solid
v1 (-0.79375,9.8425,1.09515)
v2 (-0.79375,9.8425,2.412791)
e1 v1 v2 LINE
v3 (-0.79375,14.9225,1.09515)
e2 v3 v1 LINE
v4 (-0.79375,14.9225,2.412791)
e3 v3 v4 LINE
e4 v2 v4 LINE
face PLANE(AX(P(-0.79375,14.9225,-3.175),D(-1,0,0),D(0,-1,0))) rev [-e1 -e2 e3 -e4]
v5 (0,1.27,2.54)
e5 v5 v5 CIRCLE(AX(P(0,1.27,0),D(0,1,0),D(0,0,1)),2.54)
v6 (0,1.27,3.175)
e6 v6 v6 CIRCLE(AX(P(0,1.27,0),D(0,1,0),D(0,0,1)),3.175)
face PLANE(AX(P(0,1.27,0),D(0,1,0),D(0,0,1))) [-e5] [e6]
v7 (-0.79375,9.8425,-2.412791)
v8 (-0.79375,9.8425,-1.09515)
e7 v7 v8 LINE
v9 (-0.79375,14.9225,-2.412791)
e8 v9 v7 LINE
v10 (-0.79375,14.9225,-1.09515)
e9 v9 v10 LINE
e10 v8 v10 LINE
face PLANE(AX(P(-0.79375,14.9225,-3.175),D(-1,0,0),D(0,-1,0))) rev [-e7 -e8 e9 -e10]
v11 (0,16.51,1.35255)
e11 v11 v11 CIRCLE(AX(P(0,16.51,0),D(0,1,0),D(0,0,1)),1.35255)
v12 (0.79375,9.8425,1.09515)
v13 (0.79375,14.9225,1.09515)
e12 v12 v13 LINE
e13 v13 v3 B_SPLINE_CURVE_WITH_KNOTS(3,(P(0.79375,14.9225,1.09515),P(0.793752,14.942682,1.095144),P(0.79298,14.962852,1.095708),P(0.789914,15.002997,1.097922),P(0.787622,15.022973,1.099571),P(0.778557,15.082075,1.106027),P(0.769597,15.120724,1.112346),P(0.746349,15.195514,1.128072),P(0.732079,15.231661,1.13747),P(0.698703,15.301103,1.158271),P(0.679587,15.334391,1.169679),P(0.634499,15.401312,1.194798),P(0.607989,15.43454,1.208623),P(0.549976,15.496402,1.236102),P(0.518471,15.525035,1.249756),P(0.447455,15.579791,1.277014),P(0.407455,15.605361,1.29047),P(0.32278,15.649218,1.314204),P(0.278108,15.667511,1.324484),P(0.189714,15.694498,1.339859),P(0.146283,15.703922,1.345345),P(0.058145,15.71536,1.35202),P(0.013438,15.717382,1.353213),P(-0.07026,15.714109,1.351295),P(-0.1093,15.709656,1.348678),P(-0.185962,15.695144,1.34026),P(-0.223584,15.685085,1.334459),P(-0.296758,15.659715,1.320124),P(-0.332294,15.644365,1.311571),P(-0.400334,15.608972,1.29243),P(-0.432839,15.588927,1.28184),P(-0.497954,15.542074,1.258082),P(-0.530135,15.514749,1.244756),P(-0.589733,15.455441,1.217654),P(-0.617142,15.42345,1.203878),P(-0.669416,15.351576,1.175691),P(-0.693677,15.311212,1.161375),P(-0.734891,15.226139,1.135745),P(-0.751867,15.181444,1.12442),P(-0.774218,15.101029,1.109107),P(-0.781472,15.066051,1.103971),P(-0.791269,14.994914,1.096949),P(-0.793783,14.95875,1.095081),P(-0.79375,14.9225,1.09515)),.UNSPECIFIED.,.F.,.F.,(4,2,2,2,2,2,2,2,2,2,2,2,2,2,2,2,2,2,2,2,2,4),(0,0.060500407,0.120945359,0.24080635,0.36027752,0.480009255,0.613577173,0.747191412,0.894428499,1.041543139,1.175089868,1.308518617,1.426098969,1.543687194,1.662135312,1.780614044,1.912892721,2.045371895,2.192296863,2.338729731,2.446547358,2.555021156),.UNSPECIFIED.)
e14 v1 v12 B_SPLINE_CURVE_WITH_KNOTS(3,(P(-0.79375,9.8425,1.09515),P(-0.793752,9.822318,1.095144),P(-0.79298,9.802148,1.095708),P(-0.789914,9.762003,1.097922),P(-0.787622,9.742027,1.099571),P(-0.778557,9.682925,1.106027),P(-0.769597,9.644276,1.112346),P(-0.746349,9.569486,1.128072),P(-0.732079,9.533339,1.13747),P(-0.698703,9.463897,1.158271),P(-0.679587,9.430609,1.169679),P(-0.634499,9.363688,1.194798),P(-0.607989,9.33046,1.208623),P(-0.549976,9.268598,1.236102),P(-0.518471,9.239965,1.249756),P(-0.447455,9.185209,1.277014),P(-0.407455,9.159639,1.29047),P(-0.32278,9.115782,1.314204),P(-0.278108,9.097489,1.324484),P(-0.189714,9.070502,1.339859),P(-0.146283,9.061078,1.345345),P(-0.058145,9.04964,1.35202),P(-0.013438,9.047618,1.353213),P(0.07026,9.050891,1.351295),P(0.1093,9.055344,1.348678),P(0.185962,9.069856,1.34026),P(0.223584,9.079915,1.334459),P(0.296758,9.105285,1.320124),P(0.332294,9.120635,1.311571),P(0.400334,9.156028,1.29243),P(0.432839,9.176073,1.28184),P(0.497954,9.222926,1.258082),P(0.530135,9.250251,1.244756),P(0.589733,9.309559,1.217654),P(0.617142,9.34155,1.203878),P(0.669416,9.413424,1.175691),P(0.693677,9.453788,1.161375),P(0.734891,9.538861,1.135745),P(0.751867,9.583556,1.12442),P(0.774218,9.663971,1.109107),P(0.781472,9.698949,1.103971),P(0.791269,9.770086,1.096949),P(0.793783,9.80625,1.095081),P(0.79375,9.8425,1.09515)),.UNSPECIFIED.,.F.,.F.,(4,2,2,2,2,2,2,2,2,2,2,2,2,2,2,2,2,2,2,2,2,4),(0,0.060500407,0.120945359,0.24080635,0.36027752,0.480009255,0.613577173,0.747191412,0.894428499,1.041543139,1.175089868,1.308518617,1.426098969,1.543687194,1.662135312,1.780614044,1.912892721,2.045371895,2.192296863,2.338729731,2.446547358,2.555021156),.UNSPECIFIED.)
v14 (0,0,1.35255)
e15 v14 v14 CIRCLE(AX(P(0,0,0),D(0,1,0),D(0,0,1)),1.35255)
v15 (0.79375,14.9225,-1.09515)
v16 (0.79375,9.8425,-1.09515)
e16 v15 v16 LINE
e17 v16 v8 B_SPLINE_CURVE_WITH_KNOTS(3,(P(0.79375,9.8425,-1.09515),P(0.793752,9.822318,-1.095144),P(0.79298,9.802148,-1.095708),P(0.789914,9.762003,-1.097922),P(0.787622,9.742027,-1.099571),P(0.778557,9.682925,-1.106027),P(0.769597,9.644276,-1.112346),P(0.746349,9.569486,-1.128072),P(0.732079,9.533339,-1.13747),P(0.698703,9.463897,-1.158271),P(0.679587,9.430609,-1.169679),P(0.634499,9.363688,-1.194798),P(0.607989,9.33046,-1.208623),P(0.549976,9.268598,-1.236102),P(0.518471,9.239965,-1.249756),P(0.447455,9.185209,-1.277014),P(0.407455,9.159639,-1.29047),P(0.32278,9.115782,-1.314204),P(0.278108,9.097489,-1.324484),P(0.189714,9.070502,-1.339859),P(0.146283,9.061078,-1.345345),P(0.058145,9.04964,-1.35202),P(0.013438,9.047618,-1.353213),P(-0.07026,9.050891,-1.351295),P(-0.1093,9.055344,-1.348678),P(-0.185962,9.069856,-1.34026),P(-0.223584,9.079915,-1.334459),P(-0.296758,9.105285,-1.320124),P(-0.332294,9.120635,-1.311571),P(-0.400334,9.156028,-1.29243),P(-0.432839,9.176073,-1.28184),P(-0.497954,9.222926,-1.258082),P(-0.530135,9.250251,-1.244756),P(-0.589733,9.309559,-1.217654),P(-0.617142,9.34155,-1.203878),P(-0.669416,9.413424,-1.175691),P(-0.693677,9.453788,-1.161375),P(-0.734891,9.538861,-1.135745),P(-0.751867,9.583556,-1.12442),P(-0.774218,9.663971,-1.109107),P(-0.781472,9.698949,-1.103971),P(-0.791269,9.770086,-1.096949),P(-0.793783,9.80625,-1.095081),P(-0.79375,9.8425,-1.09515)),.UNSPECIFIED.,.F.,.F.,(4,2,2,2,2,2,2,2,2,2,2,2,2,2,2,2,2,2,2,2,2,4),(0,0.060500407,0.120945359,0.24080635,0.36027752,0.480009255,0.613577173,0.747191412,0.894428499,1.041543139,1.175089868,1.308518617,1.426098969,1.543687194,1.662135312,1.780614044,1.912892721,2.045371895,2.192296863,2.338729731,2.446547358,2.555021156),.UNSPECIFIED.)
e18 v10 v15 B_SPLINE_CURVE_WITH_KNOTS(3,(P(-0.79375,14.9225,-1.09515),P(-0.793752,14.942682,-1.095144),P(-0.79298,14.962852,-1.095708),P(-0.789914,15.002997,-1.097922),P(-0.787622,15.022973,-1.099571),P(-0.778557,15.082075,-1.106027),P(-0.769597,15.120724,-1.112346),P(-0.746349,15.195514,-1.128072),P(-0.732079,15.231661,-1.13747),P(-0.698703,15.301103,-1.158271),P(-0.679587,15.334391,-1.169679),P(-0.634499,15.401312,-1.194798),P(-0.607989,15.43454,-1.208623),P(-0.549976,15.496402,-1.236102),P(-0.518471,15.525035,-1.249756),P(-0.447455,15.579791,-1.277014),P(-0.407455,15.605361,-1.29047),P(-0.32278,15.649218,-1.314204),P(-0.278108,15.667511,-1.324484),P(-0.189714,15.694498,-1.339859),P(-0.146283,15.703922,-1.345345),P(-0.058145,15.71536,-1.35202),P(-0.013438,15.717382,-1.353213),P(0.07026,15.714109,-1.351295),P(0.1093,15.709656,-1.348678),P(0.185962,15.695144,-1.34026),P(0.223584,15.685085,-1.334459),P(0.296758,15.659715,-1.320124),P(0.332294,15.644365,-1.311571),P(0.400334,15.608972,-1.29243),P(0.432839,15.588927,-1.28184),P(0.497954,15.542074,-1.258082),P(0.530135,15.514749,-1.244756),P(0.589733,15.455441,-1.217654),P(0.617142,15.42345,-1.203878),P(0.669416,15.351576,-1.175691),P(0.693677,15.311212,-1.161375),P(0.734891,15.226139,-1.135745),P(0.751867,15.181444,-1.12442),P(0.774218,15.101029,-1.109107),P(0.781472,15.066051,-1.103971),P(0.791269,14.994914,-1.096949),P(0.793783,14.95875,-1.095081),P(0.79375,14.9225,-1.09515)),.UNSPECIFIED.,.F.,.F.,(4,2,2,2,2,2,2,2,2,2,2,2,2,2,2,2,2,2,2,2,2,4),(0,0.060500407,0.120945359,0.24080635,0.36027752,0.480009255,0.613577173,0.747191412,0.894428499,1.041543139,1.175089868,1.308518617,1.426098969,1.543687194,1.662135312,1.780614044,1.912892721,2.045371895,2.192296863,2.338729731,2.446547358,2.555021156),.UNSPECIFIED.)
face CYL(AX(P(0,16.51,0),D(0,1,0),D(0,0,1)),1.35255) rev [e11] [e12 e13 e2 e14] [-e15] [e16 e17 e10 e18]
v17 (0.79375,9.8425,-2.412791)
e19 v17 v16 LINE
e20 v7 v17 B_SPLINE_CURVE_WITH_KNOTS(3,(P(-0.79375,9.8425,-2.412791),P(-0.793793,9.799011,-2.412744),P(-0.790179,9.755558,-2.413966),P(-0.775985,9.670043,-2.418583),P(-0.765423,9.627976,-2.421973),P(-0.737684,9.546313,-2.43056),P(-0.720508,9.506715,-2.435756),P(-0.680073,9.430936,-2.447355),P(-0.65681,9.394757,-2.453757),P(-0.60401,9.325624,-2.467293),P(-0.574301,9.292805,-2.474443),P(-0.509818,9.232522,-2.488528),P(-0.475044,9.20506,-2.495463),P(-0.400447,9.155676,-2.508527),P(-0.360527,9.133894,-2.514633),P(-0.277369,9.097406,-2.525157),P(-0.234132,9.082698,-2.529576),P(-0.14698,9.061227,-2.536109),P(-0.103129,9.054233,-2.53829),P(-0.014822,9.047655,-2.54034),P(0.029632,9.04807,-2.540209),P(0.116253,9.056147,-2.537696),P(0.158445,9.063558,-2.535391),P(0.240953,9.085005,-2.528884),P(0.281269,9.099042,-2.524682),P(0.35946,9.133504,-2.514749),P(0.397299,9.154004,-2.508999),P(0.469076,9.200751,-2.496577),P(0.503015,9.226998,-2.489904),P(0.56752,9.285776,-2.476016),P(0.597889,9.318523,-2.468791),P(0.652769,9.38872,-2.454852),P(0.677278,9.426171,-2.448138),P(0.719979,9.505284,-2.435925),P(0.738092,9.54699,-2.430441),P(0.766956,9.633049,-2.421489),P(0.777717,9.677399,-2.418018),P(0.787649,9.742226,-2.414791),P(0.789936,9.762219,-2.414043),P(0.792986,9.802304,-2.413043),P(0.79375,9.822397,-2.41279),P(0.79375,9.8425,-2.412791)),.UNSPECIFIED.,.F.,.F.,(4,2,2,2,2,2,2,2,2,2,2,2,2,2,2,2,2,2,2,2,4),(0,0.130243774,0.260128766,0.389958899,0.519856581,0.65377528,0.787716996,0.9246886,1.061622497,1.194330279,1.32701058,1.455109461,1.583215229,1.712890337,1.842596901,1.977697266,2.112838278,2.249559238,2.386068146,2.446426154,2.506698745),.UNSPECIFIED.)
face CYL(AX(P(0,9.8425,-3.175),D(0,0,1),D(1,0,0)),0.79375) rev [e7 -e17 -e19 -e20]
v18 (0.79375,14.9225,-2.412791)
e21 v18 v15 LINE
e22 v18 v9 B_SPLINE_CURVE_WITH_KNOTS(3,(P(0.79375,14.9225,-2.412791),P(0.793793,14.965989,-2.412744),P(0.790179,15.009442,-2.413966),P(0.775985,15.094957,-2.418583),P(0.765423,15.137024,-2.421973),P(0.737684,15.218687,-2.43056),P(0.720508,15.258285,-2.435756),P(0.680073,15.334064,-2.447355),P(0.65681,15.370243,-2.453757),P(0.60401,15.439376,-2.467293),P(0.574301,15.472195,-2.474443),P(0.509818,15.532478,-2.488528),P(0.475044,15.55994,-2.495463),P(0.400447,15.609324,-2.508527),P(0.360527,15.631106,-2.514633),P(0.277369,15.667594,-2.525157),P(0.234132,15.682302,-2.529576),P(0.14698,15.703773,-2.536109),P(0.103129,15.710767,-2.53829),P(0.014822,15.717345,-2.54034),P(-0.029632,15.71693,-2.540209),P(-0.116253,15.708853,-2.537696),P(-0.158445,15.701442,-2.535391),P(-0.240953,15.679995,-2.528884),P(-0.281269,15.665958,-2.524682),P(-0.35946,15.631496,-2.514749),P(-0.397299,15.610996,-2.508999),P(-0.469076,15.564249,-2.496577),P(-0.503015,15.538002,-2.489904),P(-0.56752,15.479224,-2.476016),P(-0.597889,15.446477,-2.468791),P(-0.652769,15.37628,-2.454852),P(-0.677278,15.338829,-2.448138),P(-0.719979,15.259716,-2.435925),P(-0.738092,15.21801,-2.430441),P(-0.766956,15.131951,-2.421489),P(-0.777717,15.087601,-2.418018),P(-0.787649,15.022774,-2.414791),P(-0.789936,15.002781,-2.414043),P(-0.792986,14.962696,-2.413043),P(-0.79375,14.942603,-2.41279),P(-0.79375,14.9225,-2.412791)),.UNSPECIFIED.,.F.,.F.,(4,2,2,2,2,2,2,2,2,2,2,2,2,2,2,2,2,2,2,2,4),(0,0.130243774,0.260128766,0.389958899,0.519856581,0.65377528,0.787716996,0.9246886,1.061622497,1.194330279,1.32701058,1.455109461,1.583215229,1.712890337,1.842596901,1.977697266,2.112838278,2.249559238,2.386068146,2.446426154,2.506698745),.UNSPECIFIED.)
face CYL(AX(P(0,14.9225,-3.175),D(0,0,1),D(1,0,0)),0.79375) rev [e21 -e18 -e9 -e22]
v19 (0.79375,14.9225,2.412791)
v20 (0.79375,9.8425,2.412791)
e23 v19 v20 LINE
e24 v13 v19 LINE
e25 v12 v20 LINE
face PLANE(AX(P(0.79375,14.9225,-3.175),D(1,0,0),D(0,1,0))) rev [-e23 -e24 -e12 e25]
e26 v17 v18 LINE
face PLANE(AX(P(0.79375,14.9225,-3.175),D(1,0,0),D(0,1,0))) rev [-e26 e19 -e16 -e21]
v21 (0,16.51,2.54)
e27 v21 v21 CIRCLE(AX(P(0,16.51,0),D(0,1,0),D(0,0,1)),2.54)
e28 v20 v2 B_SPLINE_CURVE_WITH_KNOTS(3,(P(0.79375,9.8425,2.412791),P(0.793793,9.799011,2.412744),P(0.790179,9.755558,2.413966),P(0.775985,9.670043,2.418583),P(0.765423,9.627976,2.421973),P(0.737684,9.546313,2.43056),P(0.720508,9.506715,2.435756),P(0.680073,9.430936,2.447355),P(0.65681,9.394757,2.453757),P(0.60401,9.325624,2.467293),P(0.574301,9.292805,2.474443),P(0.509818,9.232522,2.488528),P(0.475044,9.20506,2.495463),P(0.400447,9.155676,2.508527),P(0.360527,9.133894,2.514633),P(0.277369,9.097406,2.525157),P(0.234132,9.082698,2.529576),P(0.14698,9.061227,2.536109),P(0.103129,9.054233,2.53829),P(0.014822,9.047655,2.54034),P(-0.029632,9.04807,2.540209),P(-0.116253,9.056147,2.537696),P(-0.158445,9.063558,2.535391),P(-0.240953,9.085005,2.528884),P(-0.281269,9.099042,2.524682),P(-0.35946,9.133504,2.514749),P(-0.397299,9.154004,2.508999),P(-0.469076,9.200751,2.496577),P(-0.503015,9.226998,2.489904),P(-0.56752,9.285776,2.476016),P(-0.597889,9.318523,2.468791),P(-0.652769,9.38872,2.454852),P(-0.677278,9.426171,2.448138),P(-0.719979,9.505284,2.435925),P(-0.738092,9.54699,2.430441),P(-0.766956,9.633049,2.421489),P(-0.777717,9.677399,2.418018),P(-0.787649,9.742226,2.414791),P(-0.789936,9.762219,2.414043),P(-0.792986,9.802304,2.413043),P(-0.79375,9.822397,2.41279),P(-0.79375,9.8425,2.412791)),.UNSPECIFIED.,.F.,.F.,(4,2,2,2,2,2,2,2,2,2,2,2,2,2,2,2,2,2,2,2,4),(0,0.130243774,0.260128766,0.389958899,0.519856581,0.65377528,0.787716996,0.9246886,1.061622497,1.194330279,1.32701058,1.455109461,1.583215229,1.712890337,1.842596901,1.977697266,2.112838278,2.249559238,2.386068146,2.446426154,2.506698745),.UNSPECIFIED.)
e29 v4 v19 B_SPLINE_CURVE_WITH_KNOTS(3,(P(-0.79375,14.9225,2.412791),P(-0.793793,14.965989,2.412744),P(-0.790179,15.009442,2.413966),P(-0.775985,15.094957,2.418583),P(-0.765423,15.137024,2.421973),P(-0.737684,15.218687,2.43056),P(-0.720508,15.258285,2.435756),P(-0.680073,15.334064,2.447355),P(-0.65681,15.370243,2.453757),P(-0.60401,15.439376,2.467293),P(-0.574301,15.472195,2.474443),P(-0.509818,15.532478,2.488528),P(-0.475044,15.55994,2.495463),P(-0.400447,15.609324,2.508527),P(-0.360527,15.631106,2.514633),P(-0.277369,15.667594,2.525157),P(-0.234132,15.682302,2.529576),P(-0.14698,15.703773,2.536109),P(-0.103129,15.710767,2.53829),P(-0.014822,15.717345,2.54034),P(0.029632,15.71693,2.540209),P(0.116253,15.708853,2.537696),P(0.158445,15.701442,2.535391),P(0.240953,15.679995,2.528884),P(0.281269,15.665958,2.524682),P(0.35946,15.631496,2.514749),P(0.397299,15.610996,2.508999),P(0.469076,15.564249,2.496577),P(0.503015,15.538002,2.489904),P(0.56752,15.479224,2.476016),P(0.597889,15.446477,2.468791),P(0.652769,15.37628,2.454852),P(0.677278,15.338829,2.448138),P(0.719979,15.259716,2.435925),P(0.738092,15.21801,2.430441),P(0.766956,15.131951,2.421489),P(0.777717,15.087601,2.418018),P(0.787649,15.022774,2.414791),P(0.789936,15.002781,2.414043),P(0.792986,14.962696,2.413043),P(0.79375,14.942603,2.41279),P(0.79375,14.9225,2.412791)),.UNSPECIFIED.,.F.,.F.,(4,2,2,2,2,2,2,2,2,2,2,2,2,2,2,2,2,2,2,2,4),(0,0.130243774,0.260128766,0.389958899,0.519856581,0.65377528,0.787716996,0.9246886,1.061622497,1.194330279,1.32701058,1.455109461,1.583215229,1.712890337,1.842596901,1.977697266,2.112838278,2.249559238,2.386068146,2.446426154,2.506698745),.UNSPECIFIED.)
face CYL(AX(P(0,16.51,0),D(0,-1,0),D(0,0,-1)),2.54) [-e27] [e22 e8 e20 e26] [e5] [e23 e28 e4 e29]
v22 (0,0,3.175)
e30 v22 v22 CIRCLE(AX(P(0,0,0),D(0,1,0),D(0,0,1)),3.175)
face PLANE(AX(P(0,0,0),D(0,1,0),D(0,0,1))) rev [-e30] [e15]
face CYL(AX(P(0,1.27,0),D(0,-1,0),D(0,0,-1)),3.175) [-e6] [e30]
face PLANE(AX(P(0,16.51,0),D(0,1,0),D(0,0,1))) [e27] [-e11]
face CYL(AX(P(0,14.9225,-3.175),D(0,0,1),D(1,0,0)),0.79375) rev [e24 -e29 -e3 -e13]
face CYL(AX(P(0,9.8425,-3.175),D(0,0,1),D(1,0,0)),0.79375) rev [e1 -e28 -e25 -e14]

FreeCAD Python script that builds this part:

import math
import FreeCAD as App
import Part
import Sketcher
from FreeCAD import Vector
Q = App.Units.Quantity

doc = App.newDocument("Part")
body = doc.addObject("PartDesign::Body", "Body")

# Sketch on XZ plane
sketch1 = doc.addObject("Sketcher::SketchObject", "Sketch")
body.addObject(sketch1)
sketch1.AttachmentSupport = (doc.XZ_Plane, [""])
sketch1.MapMode = "FlatFace"
sketch1.addGeometry(Part.Circle(Vector(0, 0, 0), Vector(0, 0, 1), 3.2), False)
sketch1.addConstraint(Sketcher.Constraint("Coincident", 0, 3, -1, 1))
sketch1.addConstraint(Sketcher.Constraint("Diameter", 0, Q("0.25 in")))
pad1 = doc.addObject("PartDesign::Pad", "Pad")
body.addObject(pad1)
pad1.Profile = sketch1
pad1.Length = Q("0.05 in")
pad1.Reversed = True

# Sketch on XZ plane
sketch2 = doc.addObject("Sketcher::SketchObject", "Sketch001")
body.addObject(sketch2)
sketch2.AttachmentSupport = (doc.XZ_Plane, [""])
sketch2.MapMode = "FlatFace"
sketch2.AttachmentOffset = App.Placement(Vector(0, 0, -0.05 * 25.4), App.Rotation())
sketch2.addGeometry(Part.Circle(Vector(0, 0, 0), Vector(0, 0, 1), 2.5), False)
sketch2.addConstraint(Sketcher.Constraint("Coincident", 0, 3, -1, 1))
sketch2.addConstraint(Sketcher.Constraint("Diameter", 0, Q("0.2 in")))
pad2 = doc.addObject("PartDesign::Pad", "Pad001")
body.addObject(pad2)
pad2.Profile = sketch2
pad2.Length = Q("0.6 in")
pad2.Reversed = True

# Sketch on XZ plane
sketch3 = doc.addObject("Sketcher::SketchObject", "Sketch002")
body.addObject(sketch3)
sketch3.AttachmentSupport = (doc.XZ_Plane, [""])
sketch3.MapMode = "FlatFace"
sketch3.AttachmentOffset = App.Placement(Vector(0, 0, -0.65 * 25.4), App.Rotation())
sketch3.addGeometry(Part.Circle(Vector(0, 0, 0), Vector(0, 0, 1), 1.4), False)
sketch3.addConstraint(Sketcher.Constraint("Coincident", 0, 3, -1, 1))
sketch3.addConstraint(Sketcher.Constraint("Diameter", 0, Q("0.1065 in")))
doc.recompute()
hole = doc.addObject("PartDesign::Hole", "Hole")
body.addObject(hole)
hole.Profile = sketch3
hole.ThreadType = "None"
hole.Diameter = Q("0.1065 in")
hole.DepthType = "ThroughAll"
hole.Reversed = True

# Sketch on XY plane
sketch4 = doc.addObject("Sketcher::SketchObject", "Sketch003")
body.addObject(sketch4)
sketch4.AttachmentSupport = (doc.XY_Plane, [""])
sketch4.MapMode = "FlatFace"
sketch4.addGeometry(Part.LineSegment(Vector(0.8, 9.8, 0), Vector(0.8, 14.9, 0)), False)
sketch4.addGeometry(Part.ArcOfCircle(Part.Circle(Vector(0, 14.9, 0), Vector(0, 0, 1), 0.8), math.radians(0), math.radians(180)), False)
sketch4.addGeometry(Part.LineSegment(Vector(-0.8, 14.9, 0), Vector(-0.8, 9.8, 0)), False)
sketch4.addGeometry(Part.ArcOfCircle(Part.Circle(Vector(0, 9.8, 0), Vector(0, 0, 1), 0.8), math.radians(180), math.radians(360)), False)
sketch4.addConstraint(Sketcher.Constraint("Tangent", 0, 2, 1, 1))
sketch4.addConstraint(Sketcher.Constraint("Tangent", 1, 2, 2, 1))
sketch4.addConstraint(Sketcher.Constraint("Tangent", 2, 2, 3, 1))
sketch4.addConstraint(Sketcher.Constraint("Tangent", 3, 2, 0, 1))
sketch4.addConstraint(Sketcher.Constraint("Vertical", 0))
sketch4.addConstraint(Sketcher.Constraint("Vertical", 2))
sketch4.addConstraint(Sketcher.Constraint("PointOnObject", 1, 3, -2))
sketch4.addConstraint(Sketcher.Constraint("DistanceY", 0, 1, 0, 2, Q("0.2 in")))
sketch4.addConstraint(Sketcher.Constraint("Radius", 1, Q("0.03125 in")))
sketch4.addConstraint(Sketcher.Constraint("DistanceY", -1, 1, 1, 3, Q("0.5875 in")))
pocket1 = doc.addObject("PartDesign::Pocket", "Pocket")
body.addObject(pocket1)
pocket1.Profile = sketch4
pocket1.Type = "ThroughAll"
pocket1.Midplane = True

doc.recompute()
